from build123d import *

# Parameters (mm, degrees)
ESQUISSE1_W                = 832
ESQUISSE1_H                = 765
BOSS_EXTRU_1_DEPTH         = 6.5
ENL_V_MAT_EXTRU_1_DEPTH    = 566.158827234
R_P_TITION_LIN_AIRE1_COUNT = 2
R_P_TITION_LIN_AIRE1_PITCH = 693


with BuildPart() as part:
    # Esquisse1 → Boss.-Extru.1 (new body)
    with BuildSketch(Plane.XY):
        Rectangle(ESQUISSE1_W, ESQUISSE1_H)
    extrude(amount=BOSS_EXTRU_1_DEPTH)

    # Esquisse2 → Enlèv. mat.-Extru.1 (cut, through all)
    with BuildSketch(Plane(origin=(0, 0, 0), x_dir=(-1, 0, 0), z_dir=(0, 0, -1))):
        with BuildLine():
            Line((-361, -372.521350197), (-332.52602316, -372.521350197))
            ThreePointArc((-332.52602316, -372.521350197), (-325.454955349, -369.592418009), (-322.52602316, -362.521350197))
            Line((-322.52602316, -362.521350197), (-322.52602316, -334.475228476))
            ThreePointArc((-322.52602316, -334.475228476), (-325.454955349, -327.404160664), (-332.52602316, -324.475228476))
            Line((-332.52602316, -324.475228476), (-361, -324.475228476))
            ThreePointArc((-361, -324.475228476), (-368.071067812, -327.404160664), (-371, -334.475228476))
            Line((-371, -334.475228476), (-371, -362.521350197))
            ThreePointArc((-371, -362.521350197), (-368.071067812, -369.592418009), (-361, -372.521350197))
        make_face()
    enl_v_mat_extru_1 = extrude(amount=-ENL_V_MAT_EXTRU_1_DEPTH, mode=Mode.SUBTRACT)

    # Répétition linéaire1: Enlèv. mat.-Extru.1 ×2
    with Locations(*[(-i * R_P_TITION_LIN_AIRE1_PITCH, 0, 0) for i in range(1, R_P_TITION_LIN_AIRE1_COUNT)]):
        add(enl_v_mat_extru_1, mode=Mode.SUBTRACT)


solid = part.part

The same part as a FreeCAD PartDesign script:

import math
import FreeCAD as App
import Part
import Sketcher
from FreeCAD import Vector

doc = App.newDocument("Part")
body = doc.addObject("PartDesign::Body", "Body")

# Sketch on XY plane
sketch1 = body.newObject("Sketcher::SketchObject", "Sketch")
sketch1.AttachmentSupport = (doc.getObject("XY_Plane"), [""])
sketch1.MapMode = "FlatFace"
sketch1.addGeometry([
    Part.LineSegment(Vector(-416, 382, 0), Vector(-416, -382, 0)),
    Part.LineSegment(Vector(-416, -382, 0), Vector(416, -382, 0)),
    Part.LineSegment(Vector(416, -382, 0), Vector(416, 382, 0)),
    Part.LineSegment(Vector(416, 382, 0), Vector(-416, 382, 0)),
], False)
sketch1.addConstraint([
    Sketcher.Constraint("Coincident", 0, 2, 1, 1),
    Sketcher.Constraint("Coincident", 1, 2, 2, 1),
    Sketcher.Constraint("Coincident", 2, 2, 3, 1),
    Sketcher.Constraint("Coincident", 3, 2, 0, 1),
    Sketcher.Constraint("Vertical", 0),
    Sketcher.Constraint("Horizontal", 1),
    Sketcher.Constraint("Vertical", 2),
    Sketcher.Constraint("Horizontal", 3),
    Sketcher.Constraint("Symmetric", 0, 2, 2, 2, -1, 1),
    Sketcher.Constraint("DistanceX", 1, 1, 1, 2, 832.0),
    Sketcher.Constraint("DistanceY", 0, 2, 0, 1, 765.0),
])
pad1 = body.newObject("PartDesign::Pad", "Pad")
pad1.Profile = sketch1
pad1.Length = 6.5

# Sketch on XY plane
sketch2 = body.newObject("Sketcher::SketchObject", "Sketch001")
sketch2.AttachmentSupport = (doc.getObject("XY_Plane"), [""])
sketch2.MapMode = "FlatFace"
sketch2.addGeometry([
    Part.LineSegment(Vector(361, -373, 0), Vector(333, -373, 0)),  # 0
    Part.ArcOfCircle(Part.Circle(Vector(333, -363, 0), Vector(0, 0, 1), 10), math.radians(-180), math.radians(-90)),  # 1
    Part.LineSegment(Vector(323, -363, 0), Vector(323, -334, 0)),  # 2
    Part.ArcOfCircle(Part.Circle(Vector(333, -334, 0), Vector(0, 0, 1), 10), math.radians(90), math.radians(180)),  # 3
    Part.LineSegment(Vector(333, -324, 0), Vector(361, -324, 0)),  # 4
    Part.ArcOfCircle(Part.Circle(Vector(361, -334, 0), Vector(0, 0, 1), 10), math.radians(0), math.radians(90)),  # 5
    Part.LineSegment(Vector(371, -334, 0), Vector(371, -363, 0)),  # 6
    Part.ArcOfCircle(Part.Circle(Vector(361, -363, 0), Vector(0, 0, 1), 10), math.radians(-90), math.radians(0)),  # 7
], False)
sketch2.addConstraint([
    Sketcher.Constraint("Tangent", 0, 2, 1, 2),
    Sketcher.Constraint("Tangent", 1, 1, 2, 1),
    Sketcher.Constraint("Tangent", 2, 2, 3, 2),
    Sketcher.Constraint("Tangent", 3, 1, 4, 1),
    Sketcher.Constraint("Tangent", 4, 2, 5, 2),
    Sketcher.Constraint("Tangent", 5, 1, 6, 1),
    Sketcher.Constraint("Tangent", 6, 2, 7, 2),
    Sketcher.Constraint("Tangent", 7, 1, 0, 1),
    Sketcher.Constraint("Horizontal", 0),
    Sketcher.Constraint("Vertical", 2),
    Sketcher.Constraint("Horizontal", 4),
    Sketcher.Constraint("Vertical", 6),
    Sketcher.Constraint("Equal", 1, 3),
    Sketcher.Constraint("Equal", 3, 5),
    Sketcher.Constraint("Equal", 5, 7),
    Sketcher.Constraint("Radius", 1, 10.0),
    Sketcher.Constraint("DistanceX", -1, 1, 5, 3, 361.0),
    Sketcher.Constraint("DistanceY", 2, 1, 2, 2, 28.046122),
    Sketcher.Constraint("DistanceX", 0, 2, 0, 1, 28.473977),
    Sketcher.Constraint("DistanceY", 1, 3, -1, 1, 362.52135),
])
pocket1 = body.newObject("PartDesign::Pocket", "Pocket")
pocket1.Profile = sketch2
pocket1.Type = "ThroughAll"
pocket1.Reversed = True
doc.recompute()

linearpattern = body.newObject("PartDesign::LinearPattern", "LinearPattern")
linearpattern.Originals = [pocket1]
linearpattern.Direction = (doc.getObject("X_Axis"), [""])
linearpattern.Mode = "offset"
linearpattern.Offset = 693
linearpattern.Occurrences = 2
linearpattern.Reversed = True
body.Tip = linearpattern

doc.recompute()
